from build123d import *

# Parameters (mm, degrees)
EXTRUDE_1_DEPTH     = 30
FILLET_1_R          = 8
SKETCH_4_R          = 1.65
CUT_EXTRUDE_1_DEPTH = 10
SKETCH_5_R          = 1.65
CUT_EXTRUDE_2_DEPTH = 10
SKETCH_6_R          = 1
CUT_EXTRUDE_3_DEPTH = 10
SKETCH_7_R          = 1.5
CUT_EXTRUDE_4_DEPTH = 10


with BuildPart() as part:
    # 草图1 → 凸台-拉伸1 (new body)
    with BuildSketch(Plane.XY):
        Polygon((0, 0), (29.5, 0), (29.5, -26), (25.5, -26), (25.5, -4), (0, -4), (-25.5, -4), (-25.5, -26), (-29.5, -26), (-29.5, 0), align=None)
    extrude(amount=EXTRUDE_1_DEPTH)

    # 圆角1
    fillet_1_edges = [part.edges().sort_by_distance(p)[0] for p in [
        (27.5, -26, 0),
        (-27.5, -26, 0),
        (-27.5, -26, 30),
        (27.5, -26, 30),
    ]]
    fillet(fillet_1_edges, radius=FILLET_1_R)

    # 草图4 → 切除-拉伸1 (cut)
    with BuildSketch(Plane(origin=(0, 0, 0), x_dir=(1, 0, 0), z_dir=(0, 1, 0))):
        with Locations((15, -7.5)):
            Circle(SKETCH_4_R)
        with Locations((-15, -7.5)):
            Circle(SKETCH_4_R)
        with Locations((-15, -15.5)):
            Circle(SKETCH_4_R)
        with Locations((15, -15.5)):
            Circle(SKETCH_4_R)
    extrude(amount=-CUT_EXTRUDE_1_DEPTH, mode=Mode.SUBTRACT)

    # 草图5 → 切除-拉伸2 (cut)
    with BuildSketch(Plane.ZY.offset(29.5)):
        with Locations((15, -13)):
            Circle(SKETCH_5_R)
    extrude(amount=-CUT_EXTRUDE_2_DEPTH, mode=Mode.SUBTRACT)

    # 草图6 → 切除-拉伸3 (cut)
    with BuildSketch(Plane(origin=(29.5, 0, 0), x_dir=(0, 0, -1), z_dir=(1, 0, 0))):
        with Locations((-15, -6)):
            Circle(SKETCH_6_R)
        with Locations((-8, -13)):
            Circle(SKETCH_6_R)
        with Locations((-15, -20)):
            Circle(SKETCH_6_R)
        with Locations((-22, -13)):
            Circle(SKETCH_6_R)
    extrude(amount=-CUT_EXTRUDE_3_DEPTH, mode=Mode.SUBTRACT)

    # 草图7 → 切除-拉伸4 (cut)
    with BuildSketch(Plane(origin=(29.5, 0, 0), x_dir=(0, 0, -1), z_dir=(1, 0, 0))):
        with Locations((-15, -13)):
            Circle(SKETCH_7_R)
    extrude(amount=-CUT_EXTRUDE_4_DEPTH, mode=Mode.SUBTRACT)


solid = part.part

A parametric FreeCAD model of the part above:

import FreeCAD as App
import Part
import Sketcher
from FreeCAD import Vector


def edges_at(feature, points):
    """Names of the edges that pass closest to the given points."""
    edges = feature.Shape.Edges
    near = lambda p: min(range(len(edges)), key=lambda i: edges[i].distToShape(Part.Vertex(*p))[0])
    return sorted({f"Edge{near(p) + 1}" for p in points})


def add_polygon(sketch, points):
    """Adds a closed chain of lines whose ends are joined by coincident constraints."""
    first, n = sketch.GeometryCount, len(points)
    for a, b in zip(points, points[1:] + points[:1]):
        sketch.addGeometry(Part.LineSegment(App.Vector(*a, 0), App.Vector(*b, 0)), False)
    for i in range(n):
        sketch.addConstraint(Sketcher.Constraint("Coincident", first + i, 2, first + (i + 1) % n, 1))

doc = App.newDocument("Part")
body = doc.addObject("PartDesign::Body", "Body")

# Sketch on XY plane
sketch1 = doc.addObject("Sketcher::SketchObject", "Sketch")
body.addObject(sketch1)
sketch1.AttachmentSupport = (doc.XY_Plane, [""])
sketch1.MapMode = "FlatFace"
add_polygon(sketch1, [(29.5, 0), (-29.5, 0), (-29.5, -26), (-25.5, -26), (-25.5, -4), (25.5, -4), (25.5, -26), (29.5, -26)])  # lines 0-7
sketch1.addConstraint([
    Sketcher.Constraint("Horizontal", 0),
    Sketcher.Constraint("Vertical", 1),
    Sketcher.Constraint("Horizontal", 2),
    Sketcher.Constraint("Vertical", 3),
    Sketcher.Constraint("Horizontal", 4),
    Sketcher.Constraint("Vertical", 5),
    Sketcher.Constraint("Horizontal", 6),
    Sketcher.Constraint("Vertical", 7),
    Sketcher.Constraint("Symmetric", 0, 2, 7, 2, -1, 1),
    Sketcher.Constraint("Symmetric", 2, 2, 5, 2, -2),
    Sketcher.Constraint("DistanceX", 0, 2, 0, 1, 59.0),
    Sketcher.Constraint("DistanceX", 2, 1, 2, 2, 4.0),
    Sketcher.Constraint("DistanceY", 1, 2, 1, 1, 26.0),
    Sketcher.Constraint("DistanceY", 3, 1, 3, 2, 22.0),
])
pad1 = doc.addObject("PartDesign::Pad", "Pad")
body.addObject(pad1)
pad1.Profile = sketch1
pad1.Length = 30
doc.recompute()

fillet = doc.addObject("PartDesign::Fillet", "Fillet")
body.addObject(fillet)
fillet.Base = (pad1, edges_at(pad1, [
    (27.5, -26, 0),
    (-27.5, -26, 0),
    (-27.5, -26, 30),
    (27.5, -26, 30),
]))
fillet.Radius = 8

# Sketch on XZ plane
sketch2 = doc.addObject("Sketcher::SketchObject", "Sketch001")
body.addObject(sketch2)
sketch2.AttachmentSupport = (doc.XZ_Plane, [""])
sketch2.MapMode = "FlatFace"
sketch2.addGeometry([
    Part.Circle(Vector(15, 7.5, 0), Vector(0, 0, 1), 1.6),
    Part.Circle(Vector(-15, 7.5, 0), Vector(0, 0, 1), 1.6),
    Part.Circle(Vector(-15, 15.5, 0), Vector(0, 0, 1), 1.6),
    Part.Circle(Vector(15, 15.5, 0), Vector(0, 0, 1), 1.6),
], False)
sketch2.addConstraint([
    Sketcher.Constraint("Equal", 0, 1),
    Sketcher.Constraint("Equal", 1, 2),
    Sketcher.Constraint("Equal", 2, 3),
    Sketcher.Constraint("Symmetric", 0, 3, 1, 3, -2),
    Sketcher.Constraint("Symmetric", 2, 3, 3, 3, -2),
    Sketcher.Constraint("Vertical", 1, 3, 2, 3),
    Sketcher.Constraint("Diameter", 0, 3.3),
    Sketcher.Constraint("DistanceX", -1, 1, 0, 3, 15.0),
    Sketcher.Constraint("DistanceY", 1, 3, 2, 3, 8.0),
    Sketcher.Constraint("DistanceY", -1, 1, 0, 3, 7.5),
])
pocket1 = doc.addObject("PartDesign::Pocket", "Pocket")
body.addObject(pocket1)
pocket1.Profile = sketch2
pocket1.Length = 10
pocket1.Reversed = True

# Sketch on YZ plane
sketch3 = doc.addObject("Sketcher::SketchObject", "Sketch002")
body.addObject(sketch3)
sketch3.AttachmentSupport = (doc.YZ_Plane, [""])
sketch3.MapMode = "FlatFace"
sketch3.AttachmentOffset = App.Placement(Vector(0, 0, -29.5), App.Rotation())
sketch3.addGeometry(Part.Circle(Vector(-13, 15, 0), Vector(0, 0, 1), 1.6), False)
sketch3.addConstraint([
    Sketcher.Constraint("Diameter", 0, 3.3),
    Sketcher.Constraint("DistanceX", 0, 3, -1, 1, 13.0),
    Sketcher.Constraint("DistanceY", -1, 1, 0, 3, 15.0),
])
pocket2 = doc.addObject("PartDesign::Pocket", "Pocket001")
body.addObject(pocket2)
pocket2.Profile = sketch3
pocket2.Length = 10
pocket2.Reversed = True

# Sketch on YZ plane
sketch4 = doc.addObject("Sketcher::SketchObject", "Sketch003")
body.addObject(sketch4)
sketch4.AttachmentSupport = (doc.YZ_Plane, [""])
sketch4.MapMode = "FlatFace"
sketch4.AttachmentOffset = App.Placement(Vector(0, 0, 29.5), App.Rotation())
sketch4.addGeometry([
    Part.Circle(Vector(-6, 15, 0), Vector(0, 0, 1), 1),
    Part.Circle(Vector(-13, 8, 0), Vector(0, 0, 1), 1),
    Part.Circle(Vector(-20, 15, 0), Vector(0, 0, 1), 1),
    Part.Circle(Vector(-13, 22, 0), Vector(0, 0, 1), 1),
], False)
sketch4.addConstraint([
    Sketcher.Constraint("Equal", 0, 1),
    Sketcher.Constraint("Equal", 1, 2),
    Sketcher.Constraint("Equal", 2, 3),
    Sketcher.Constraint("Horizontal", 0, 3, 2, 3),
    Sketcher.Constraint("Vertical", 1, 3, 3, 3),
    Sketcher.Constraint("Diameter", 0, 2.0),
    Sketcher.Constraint("DistanceX", 0, 3, -1, 1, 6.0),
    Sketcher.Constraint("DistanceY", -1, 1, 0, 3, 15.0),
    Sketcher.Constraint("DistanceX", 1, 3, -1, 1, 13.0),
    Sketcher.Constraint("DistanceY", -1, 1, 1, 3, 8.0),
    Sketcher.Constraint("DistanceX", 2, 3, -1, 1, 20.0),
    Sketcher.Constraint("DistanceY", -1, 1, 3, 3, 22.0),
])
pocket3 = doc.addObject("PartDesign::Pocket", "Pocket002")
body.addObject(pocket3)
pocket3.Profile = sketch4
pocket3.Length = 10

# Sketch on YZ plane
sketch5 = doc.addObject("Sketcher::SketchObject", "Sketch004")
body.addObject(sketch5)
sketch5.AttachmentSupport = (doc.YZ_Plane, [""])
sketch5.MapMode = "FlatFace"
sketch5.AttachmentOffset = App.Placement(Vector(0, 0, 29.5), App.Rotation())
sketch5.addGeometry(Part.Circle(Vector(-13, 15, 0), Vector(0, 0, 1), 1.5), False)
sketch5.addConstraint([
    Sketcher.Constraint("Diameter", 0, 3.0),
    Sketcher.Constraint("DistanceX", 0, 3, -1, 1, 13.0),
    Sketcher.Constraint("DistanceY", -1, 1, 0, 3, 15.0),
])
pocket4 = doc.addObject("PartDesign::Pocket", "Pocket003")
body.addObject(pocket4)
pocket4.Profile = sketch5
pocket4.Length = 10

doc.recompute()
